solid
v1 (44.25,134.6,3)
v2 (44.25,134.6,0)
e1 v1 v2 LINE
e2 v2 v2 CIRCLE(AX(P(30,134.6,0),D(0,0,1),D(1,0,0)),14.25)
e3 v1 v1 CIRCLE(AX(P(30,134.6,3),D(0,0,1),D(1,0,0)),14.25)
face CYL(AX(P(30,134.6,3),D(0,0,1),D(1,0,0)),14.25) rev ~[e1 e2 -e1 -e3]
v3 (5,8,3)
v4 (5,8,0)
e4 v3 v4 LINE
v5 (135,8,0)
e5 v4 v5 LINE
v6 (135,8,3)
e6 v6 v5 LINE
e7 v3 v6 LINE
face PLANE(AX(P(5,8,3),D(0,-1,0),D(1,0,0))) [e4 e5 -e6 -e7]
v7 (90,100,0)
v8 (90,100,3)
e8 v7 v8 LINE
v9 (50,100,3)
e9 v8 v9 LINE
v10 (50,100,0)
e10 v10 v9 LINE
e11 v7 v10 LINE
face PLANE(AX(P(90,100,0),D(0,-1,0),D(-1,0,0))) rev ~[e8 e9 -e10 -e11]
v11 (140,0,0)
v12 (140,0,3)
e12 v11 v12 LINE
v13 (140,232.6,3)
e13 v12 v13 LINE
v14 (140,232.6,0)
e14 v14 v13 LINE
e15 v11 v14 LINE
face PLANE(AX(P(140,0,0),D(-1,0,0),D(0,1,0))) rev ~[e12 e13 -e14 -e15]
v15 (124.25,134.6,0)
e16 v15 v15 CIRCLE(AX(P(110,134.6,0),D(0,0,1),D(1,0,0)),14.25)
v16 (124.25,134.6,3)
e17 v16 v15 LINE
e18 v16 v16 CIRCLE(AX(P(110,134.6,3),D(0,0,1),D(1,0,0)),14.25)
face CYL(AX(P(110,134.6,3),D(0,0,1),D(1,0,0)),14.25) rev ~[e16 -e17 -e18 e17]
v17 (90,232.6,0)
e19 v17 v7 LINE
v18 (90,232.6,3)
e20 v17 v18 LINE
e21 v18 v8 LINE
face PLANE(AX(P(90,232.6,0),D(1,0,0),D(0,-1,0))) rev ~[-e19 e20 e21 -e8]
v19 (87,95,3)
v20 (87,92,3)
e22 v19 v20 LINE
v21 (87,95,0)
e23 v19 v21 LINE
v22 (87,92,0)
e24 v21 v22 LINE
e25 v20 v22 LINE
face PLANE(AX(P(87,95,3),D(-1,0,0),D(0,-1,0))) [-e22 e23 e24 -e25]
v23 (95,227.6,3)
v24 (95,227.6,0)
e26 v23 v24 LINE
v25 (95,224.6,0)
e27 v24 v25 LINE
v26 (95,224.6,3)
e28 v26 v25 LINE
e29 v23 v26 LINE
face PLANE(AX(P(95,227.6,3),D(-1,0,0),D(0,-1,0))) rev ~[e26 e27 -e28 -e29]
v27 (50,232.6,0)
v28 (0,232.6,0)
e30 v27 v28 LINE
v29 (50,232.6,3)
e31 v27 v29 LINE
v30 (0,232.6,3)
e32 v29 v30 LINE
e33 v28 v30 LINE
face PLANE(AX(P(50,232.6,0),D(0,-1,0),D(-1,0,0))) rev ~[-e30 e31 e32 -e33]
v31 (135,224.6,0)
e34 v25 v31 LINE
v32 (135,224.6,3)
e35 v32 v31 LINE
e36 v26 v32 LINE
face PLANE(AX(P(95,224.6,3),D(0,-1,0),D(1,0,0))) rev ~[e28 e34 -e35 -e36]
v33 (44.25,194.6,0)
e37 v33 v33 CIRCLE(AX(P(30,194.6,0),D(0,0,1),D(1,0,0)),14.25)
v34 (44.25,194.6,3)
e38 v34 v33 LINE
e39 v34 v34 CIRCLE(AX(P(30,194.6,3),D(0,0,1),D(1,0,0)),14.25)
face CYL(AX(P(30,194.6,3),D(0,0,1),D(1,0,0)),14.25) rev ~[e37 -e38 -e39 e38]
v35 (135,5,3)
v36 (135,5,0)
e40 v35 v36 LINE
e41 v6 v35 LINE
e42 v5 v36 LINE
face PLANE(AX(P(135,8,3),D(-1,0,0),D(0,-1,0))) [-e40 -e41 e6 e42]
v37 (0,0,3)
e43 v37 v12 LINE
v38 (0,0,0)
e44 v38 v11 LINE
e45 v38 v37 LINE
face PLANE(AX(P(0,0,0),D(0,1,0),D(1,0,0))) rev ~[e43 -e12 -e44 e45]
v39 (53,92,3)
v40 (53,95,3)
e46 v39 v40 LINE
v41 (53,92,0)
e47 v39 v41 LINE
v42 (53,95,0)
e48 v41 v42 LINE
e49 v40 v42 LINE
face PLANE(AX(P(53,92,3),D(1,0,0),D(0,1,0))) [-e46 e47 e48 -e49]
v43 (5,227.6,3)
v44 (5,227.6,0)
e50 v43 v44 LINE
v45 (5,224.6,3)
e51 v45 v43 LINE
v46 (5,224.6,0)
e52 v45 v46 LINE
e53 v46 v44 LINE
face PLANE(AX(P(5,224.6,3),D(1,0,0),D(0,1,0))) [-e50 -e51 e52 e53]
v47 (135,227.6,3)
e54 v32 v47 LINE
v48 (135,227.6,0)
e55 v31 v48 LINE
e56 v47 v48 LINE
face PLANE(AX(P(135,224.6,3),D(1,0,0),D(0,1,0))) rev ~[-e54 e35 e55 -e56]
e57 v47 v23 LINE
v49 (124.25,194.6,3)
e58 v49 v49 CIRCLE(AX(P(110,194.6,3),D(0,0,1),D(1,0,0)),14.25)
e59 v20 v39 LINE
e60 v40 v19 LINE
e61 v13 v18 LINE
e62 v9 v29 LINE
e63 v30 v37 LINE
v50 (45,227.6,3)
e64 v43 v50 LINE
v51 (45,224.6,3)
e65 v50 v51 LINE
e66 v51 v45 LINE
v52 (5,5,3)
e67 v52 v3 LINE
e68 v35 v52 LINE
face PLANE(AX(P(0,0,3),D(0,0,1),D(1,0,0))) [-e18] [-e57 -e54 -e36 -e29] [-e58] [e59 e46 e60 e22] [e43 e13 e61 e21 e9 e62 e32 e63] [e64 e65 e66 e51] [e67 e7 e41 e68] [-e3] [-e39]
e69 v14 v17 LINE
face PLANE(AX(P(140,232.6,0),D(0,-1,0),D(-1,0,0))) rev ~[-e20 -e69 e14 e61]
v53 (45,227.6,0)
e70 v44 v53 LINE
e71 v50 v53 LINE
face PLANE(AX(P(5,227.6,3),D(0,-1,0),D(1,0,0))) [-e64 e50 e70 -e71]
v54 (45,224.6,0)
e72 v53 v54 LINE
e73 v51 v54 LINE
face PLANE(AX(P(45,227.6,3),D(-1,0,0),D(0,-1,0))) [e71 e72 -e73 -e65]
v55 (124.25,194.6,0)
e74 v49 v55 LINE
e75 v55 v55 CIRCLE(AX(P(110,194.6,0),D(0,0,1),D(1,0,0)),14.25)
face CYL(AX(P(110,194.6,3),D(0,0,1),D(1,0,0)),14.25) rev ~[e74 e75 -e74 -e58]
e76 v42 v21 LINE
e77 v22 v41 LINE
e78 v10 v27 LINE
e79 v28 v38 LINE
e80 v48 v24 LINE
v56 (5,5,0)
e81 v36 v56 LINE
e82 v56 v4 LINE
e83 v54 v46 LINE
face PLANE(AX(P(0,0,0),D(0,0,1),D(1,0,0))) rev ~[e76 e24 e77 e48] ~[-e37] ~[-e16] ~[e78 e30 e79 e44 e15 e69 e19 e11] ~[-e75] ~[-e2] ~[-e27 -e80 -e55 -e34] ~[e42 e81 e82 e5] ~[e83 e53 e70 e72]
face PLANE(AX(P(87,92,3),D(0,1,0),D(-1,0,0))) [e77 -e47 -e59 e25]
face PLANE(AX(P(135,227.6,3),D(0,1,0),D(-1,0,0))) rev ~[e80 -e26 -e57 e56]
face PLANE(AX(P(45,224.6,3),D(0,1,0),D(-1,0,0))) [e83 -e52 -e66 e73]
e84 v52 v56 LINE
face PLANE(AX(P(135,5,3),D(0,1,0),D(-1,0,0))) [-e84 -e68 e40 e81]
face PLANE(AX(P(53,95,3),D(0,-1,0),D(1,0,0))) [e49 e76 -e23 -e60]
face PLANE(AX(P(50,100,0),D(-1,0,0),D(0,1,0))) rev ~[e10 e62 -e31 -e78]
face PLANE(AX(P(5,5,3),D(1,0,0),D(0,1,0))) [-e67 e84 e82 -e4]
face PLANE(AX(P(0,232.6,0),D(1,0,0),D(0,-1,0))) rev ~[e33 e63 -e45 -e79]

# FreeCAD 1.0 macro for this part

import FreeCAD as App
import Part
import Sketcher
from FreeCAD import Vector
Q = App.Units.Quantity


def add_polygon(sketch, points):
    """Adds a closed chain of lines whose ends are joined by coincident constraints."""
    first, n = sketch.GeometryCount, len(points)
    for a, b in zip(points, points[1:] + points[:1]):
        sketch.addGeometry(Part.LineSegment(App.Vector(*a, 0), App.Vector(*b, 0)), False)
    for i in range(n):
        sketch.addConstraint(Sketcher.Constraint("Coincident", first + i, 2, first + (i + 1) % n, 1))

doc = App.newDocument("Part")
body = doc.addObject("PartDesign::Body", "Body")

sketch1 = doc.addObject("Sketcher::SketchObject", "Sketch")
body.addObject(sketch1)
sketch1.AttachmentSupport = (doc.XY_Plane, [""])
sketch1.MapMode = "FlatFace"
add_polygon(sketch1, [(0, 233), (0, 0), (140, 0), (140, 233), (90, 233), (90, 100), (50, 100), (50, 233)])
sketch1.addConstraint([
    Sketcher.Constraint("Vertical", 0),
    Sketcher.Constraint("Horizontal", 1),
    Sketcher.Constraint("Vertical", 2),
    Sketcher.Constraint("Horizontal", 3),
    Sketcher.Constraint("Vertical", 4),
    Sketcher.Constraint("Horizontal", 5),
    Sketcher.Constraint("Vertical", 6),
    Sketcher.Constraint("Horizontal", 7),
    Sketcher.Constraint("Coincident", 0, 2, -1, 1),
    Sketcher.Constraint("Horizontal", 3, 2, 6, 2),
    Sketcher.Constraint("Equal", 3, 7),
    Sketcher.Constraint("DistanceX", 3, 2, 3, 1, Q("50 mm")),
    Sketcher.Constraint("DistanceX", 5, 2, 5, 1, Q("40 mm")),
    Sketcher.Constraint("DistanceY", 4, 2, 4, 1, Q("132.6 mm")),
    Sketcher.Constraint("DistanceY", -1, 1, 4, 2, Q("100 mm")),
])
pad1 = doc.addObject("PartDesign::Pad", "Pad")
body.addObject(pad1)
pad1.Profile = sketch1
pad1.Length = 3

sketch2 = doc.addObject("Sketcher::SketchObject", "Sketch001")
body.addObject(sketch2)
sketch2.AttachmentSupport = (doc.XY_Plane, [""])
sketch2.MapMode = "FlatFace"
sketch2.AttachmentOffset = App.Placement(Vector(0, 0, 3), App.Rotation())
sketch2.addGeometry([
    Part.Circle(Vector(30, 195, 0), Vector(0, 0, 1), 14),
    Part.Circle(Vector(30, 135, 0), Vector(0, 0, 1), 14),
    Part.Circle(Vector(110, 195, 0), Vector(0, 0, 1), 14),
    Part.Circle(Vector(110, 135, 0), Vector(0, 0, 1), 14),
], False)
sketch2.addConstraint([
    Sketcher.Constraint("Equal", 0, 1),
    Sketcher.Constraint("Equal", 1, 2),
    Sketcher.Constraint("Equal", 2, 3),
    Sketcher.Constraint("Horizontal", 0, 3, 2, 3),
    Sketcher.Constraint("Horizontal", 1, 3, 3, 3),
    Sketcher.Constraint("Vertical", 0, 3, 1, 3),
    Sketcher.Constraint("Vertical", 2, 3, 3, 3),
    Sketcher.Constraint("Diameter", 0, Q("28.5 mm")),
    Sketcher.Constraint("DistanceX", -1, 1, 0, 3, Q("30 mm")),
    Sketcher.Constraint("DistanceY", 1, 3, 0, 3, Q("60 mm")),
    Sketcher.Constraint("DistanceX", -1, 1, 2, 3, Q("110 mm")),
    Sketcher.Constraint("DistanceY", -1, 1, 0, 3, Q("194.6 mm")),
])
pocket1 = doc.addObject("PartDesign::Pocket", "Pocket")
body.addObject(pocket1)
pocket1.Profile = sketch2
pocket1.Length = 10

sketch3 = doc.addObject("Sketcher::SketchObject", "Sketch002")
body.addObject(sketch3)
sketch3.AttachmentSupport = (doc.XY_Plane, [""])
sketch3.MapMode = "FlatFace"
sketch3.AttachmentOffset = App.Placement(Vector(0, 0, 3), App.Rotation())
add_polygon(sketch3, [(45, 227.6), (5, 227.6), (5, 224.6), (45, 224.6)])
add_polygon(sketch3, [(87, 95), (53, 95), (53, 92), (87, 92)])
add_polygon(sketch3, [(135, 8), (5, 8), (5, 5), (135, 5)])
add_polygon(sketch3, [(135, 224.6), (135, 227.6), (95, 227.6), (95, 224.6)])
sketch3.addConstraint([
    Sketcher.Constraint("Horizontal", 0),
    Sketcher.Constraint("Vertical", 1),
    Sketcher.Constraint("Horizontal", 2),
    Sketcher.Constraint("Vertical", 3),
    Sketcher.Constraint("Horizontal", 4),
    Sketcher.Constraint("Vertical", 5),
    Sketcher.Constraint("Horizontal", 6),
    Sketcher.Constraint("Vertical", 7),
    Sketcher.Constraint("Horizontal", 8),
    Sketcher.Constraint("Vertical", 9),
    Sketcher.Constraint("Horizontal", 10),
    Sketcher.Constraint("Vertical", 11),
    Sketcher.Constraint("Vertical", 12),
    Sketcher.Constraint("Horizontal", 13),
    Sketcher.Constraint("Vertical", 14),
    Sketcher.Constraint("Horizontal", 15),
    Sketcher.Constraint("Horizontal", 3, 2, 12, 2),
    Sketcher.Constraint("Horizontal", 2, 2, 14, 2),
    Sketcher.Constraint("Vertical", 1, 2, 8, 2),
    Sketcher.Constraint("Vertical", 11, 2, 12, 2),
    Sketcher.Constraint("Equal", 2, 13),
    Sketcher.Constraint("Equal", 3, 5),
    Sketcher.Constraint("Equal", 7, 9),
    Sketcher.Constraint("DistanceY", 1, 2, 1, 1, Q("3 mm")),
    Sketcher.Constraint("DistanceX", -1, 1, 0, 2, Q("5 mm")),
    Sketcher.Constraint("DistanceY", -1, 1, 9, 2, Q("5 mm")),
    Sketcher.Constraint("DistanceX", 0, 2, 0, 1, Q("40 mm")),
    Sketcher.Constraint("DistanceX", 4, 2, 4, 1, Q("34 mm")),
    Sketcher.Constraint("DistanceX", 8, 2, 8, 1, Q("130 mm")),
    Sketcher.Constraint("DistanceX", -1, 1, 4, 2, Q("53 mm")),
    Sketcher.Constraint("DistanceY", -1, 1, 4, 2, Q("95 mm")),
    Sketcher.Constraint("DistanceY", -1, 1, 0, 2, Q("227.6 mm")),
])
pocket2 = doc.addObject("PartDesign::Pocket", "Pocket001")
body.addObject(pocket2)
pocket2.Profile = sketch3
pocket2.Length = 10

doc.recompute()
